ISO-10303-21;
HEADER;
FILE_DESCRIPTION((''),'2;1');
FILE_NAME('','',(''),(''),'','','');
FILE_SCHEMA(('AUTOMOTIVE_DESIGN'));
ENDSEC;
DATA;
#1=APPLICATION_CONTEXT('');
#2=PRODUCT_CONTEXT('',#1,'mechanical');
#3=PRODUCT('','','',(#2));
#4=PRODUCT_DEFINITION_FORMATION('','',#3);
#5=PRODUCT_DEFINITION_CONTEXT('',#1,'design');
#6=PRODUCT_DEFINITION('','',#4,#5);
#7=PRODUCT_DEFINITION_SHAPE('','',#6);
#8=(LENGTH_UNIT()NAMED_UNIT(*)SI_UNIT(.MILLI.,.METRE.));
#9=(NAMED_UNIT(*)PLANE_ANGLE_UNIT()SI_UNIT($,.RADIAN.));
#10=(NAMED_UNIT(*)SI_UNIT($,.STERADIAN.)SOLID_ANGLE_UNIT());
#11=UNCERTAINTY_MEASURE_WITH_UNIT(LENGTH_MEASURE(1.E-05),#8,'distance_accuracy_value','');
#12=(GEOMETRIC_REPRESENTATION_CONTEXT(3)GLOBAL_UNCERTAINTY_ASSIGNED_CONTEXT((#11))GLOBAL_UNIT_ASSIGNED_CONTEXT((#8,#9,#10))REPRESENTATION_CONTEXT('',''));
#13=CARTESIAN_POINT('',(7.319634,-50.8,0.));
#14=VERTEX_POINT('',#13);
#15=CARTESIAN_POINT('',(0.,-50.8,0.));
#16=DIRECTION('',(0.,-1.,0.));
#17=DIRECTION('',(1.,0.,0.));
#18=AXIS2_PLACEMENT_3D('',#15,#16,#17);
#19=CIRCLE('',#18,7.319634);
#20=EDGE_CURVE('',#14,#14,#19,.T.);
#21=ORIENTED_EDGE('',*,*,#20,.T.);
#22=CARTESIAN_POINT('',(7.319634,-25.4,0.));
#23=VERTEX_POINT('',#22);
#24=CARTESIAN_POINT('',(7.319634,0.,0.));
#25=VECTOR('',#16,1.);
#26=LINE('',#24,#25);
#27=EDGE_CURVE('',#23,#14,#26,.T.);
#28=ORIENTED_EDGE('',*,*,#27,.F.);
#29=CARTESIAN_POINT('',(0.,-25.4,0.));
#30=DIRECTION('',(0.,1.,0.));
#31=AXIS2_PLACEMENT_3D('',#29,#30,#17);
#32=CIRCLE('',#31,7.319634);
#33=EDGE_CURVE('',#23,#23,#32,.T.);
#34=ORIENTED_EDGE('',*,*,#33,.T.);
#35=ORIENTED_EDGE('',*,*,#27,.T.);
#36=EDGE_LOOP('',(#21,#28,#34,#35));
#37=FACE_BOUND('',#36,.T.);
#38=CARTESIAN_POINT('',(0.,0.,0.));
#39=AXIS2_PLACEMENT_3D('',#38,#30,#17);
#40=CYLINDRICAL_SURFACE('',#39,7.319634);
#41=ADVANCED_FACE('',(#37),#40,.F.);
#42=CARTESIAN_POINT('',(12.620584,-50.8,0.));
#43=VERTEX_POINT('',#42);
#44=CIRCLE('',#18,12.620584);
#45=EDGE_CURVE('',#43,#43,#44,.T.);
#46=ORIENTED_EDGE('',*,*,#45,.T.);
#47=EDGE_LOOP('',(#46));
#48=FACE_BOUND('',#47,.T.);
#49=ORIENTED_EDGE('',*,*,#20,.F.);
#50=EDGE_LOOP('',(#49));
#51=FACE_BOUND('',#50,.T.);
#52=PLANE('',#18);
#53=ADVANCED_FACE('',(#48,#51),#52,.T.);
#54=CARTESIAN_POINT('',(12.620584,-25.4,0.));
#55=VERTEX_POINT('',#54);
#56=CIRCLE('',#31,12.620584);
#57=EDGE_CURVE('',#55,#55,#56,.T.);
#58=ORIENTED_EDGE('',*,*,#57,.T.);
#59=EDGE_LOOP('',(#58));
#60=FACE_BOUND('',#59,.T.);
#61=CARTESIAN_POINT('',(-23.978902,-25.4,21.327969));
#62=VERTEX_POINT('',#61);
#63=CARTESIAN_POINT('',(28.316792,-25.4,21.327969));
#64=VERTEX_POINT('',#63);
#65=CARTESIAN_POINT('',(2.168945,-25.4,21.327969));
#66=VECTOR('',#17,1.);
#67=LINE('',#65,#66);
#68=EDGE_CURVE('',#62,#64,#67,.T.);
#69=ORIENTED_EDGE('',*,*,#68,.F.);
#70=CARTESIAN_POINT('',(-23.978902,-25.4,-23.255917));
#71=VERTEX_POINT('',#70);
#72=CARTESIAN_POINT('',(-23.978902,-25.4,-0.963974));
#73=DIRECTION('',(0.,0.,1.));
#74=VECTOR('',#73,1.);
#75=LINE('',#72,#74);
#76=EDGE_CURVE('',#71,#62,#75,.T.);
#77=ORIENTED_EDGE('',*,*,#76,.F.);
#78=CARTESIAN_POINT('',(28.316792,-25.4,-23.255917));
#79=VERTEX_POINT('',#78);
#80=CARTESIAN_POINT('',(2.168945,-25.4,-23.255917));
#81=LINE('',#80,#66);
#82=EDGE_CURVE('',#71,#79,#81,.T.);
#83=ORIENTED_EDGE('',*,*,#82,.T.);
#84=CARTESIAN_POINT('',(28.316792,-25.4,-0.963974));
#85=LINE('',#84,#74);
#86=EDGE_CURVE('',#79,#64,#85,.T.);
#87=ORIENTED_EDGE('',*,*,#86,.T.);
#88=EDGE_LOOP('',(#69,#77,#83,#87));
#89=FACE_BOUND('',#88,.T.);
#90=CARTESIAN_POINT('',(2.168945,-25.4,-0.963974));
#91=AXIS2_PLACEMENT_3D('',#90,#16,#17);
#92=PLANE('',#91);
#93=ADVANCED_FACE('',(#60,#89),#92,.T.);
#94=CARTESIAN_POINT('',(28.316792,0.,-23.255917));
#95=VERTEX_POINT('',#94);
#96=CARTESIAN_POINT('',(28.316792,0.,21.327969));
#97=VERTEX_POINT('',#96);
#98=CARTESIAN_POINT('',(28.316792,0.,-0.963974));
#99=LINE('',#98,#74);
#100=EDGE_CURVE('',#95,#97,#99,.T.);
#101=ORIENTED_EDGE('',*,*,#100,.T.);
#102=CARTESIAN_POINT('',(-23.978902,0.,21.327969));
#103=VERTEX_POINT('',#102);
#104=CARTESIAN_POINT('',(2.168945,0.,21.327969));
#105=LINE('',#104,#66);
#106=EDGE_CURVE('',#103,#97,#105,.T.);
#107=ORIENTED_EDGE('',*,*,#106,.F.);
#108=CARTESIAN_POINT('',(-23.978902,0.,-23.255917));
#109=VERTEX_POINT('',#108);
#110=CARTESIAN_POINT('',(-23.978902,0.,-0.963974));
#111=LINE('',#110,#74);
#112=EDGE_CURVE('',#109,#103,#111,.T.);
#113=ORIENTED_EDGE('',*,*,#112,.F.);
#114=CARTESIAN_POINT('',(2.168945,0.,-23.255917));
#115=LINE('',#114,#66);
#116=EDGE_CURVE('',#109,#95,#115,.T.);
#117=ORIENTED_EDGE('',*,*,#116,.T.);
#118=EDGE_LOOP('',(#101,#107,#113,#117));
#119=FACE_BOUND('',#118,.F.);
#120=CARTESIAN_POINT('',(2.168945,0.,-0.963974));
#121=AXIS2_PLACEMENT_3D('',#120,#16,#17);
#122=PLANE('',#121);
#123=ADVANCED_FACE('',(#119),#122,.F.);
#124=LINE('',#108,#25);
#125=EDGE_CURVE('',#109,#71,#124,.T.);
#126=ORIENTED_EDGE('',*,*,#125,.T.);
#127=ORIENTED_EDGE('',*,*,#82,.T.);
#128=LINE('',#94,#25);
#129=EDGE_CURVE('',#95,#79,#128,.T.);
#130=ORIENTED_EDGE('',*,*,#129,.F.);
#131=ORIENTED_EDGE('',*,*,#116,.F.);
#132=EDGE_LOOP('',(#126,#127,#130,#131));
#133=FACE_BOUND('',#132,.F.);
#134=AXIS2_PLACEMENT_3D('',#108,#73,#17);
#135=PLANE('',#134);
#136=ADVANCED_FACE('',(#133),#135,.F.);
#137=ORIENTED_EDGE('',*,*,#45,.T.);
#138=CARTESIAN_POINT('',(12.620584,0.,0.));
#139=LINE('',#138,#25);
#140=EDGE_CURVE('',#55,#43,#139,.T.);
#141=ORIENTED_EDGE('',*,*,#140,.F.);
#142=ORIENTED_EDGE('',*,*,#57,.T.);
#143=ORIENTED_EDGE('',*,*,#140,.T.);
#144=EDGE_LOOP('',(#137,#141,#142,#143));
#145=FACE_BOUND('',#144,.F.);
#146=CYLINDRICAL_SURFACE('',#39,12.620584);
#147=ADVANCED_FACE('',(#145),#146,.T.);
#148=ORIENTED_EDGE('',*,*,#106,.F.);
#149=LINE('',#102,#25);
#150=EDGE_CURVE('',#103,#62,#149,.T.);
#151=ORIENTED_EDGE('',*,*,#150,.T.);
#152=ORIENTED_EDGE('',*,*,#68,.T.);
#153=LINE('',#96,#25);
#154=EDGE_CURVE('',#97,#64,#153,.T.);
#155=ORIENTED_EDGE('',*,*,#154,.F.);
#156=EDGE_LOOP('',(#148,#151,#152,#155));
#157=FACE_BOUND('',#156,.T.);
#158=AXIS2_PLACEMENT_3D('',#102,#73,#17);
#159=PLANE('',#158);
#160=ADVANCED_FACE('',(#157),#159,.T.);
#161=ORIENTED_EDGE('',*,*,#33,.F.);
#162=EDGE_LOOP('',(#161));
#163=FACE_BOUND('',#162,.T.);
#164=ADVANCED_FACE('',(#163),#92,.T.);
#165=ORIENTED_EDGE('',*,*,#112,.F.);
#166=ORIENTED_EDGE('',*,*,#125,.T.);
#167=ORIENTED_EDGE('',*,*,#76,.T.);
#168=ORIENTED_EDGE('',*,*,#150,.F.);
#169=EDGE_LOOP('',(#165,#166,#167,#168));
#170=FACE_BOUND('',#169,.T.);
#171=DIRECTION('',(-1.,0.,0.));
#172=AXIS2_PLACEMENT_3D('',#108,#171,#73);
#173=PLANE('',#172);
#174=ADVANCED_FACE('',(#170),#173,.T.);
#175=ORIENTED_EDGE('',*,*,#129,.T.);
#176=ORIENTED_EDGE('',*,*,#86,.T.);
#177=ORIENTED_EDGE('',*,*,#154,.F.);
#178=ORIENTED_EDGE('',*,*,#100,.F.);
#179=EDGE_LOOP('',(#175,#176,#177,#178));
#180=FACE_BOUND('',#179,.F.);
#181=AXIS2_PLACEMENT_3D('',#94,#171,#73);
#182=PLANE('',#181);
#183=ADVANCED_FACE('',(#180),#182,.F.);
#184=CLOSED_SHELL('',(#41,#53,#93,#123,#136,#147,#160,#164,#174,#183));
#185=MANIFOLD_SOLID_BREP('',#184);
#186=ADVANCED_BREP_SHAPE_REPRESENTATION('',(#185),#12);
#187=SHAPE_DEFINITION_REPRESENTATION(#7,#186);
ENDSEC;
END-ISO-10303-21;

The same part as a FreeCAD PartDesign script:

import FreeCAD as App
import Part
import Sketcher

doc = App.newDocument("Part")
params = doc.addObject("Spreadsheet::Sheet", "Params")
for row, (alias, value) in enumerate([
    ("pad1_length", "2 in"),
    ("pad2_length", "1 in"),
], start=1):
    params.set(f"A{row}", alias)
    params.set(f"B{row}", "=" + value)
    params.setAlias(f"B{row}", alias)

body = doc.addObject("PartDesign::Body", "Body")

# Sketch on XZ plane
sketch1 = body.newObject("Sketcher::SketchObject", "Sketch")
sketch1.AttachmentSupport = (doc.getObject("XZ_Plane"), [""])
sketch1.MapMode = "FlatFace"
sketch1.addGeometry(Part.Circle(App.Vector(0, 0, 0), App.Vector(0, 0, 1), 13), False)
sketch1.addGeometry(Part.Circle(App.Vector(0, 0, 0), App.Vector(0, 0, 1), 7), False)
sketch1.addConstraint(Sketcher.Constraint("Coincident", 0, 3, -1, 1))
sketch1.addConstraint(Sketcher.Constraint("Coincident", 1, 3, -1, 1))
sketch1.addConstraint(Sketcher.Constraint("Diameter", 0, 25.241168))
sketch1.addConstraint(Sketcher.Constraint("Diameter", 1, 14.639268))
pad1 = body.newObject("PartDesign::Pad", "Pad")
pad1.Profile = sketch1
pad1.setExpression("Length", "Params.pad1_length")

# Sketch on XZ plane
sketch2 = body.newObject("Sketcher::SketchObject", "Sketch001")
sketch2.AttachmentSupport = (doc.getObject("XZ_Plane"), [""])
sketch2.MapMode = "FlatFace"
sketch2.addGeometry(Part.LineSegment(App.Vector(-24, 21, 0), App.Vector(-24, -23, 0)), False)
sketch2.addGeometry(Part.LineSegment(App.Vector(-24, -23, 0), App.Vector(28, -23, 0)), False)
sketch2.addGeometry(Part.LineSegment(App.Vector(28, -23, 0), App.Vector(28, 21, 0)), False)
sketch2.addGeometry(Part.LineSegment(App.Vector(28, 21, 0), App.Vector(-24, 21, 0)), False)
sketch2.addConstraint(Sketcher.Constraint("Coincident", 0, 2, 1, 1))
sketch2.addConstraint(Sketcher.Constraint("Coincident", 1, 2, 2, 1))
sketch2.addConstraint(Sketcher.Constraint("Coincident", 2, 2, 3, 1))
sketch2.addConstraint(Sketcher.Constraint("Coincident", 3, 2, 0, 1))
sketch2.addConstraint(Sketcher.Constraint("Vertical", 0))
sketch2.addConstraint(Sketcher.Constraint("Horizontal", 1))
sketch2.addConstraint(Sketcher.Constraint("Vertical", 2))
sketch2.addConstraint(Sketcher.Constraint("Horizontal", 3))
sketch2.addConstraint(Sketcher.Constraint("DistanceX", 1, 1, 1, 2, 52.295694))
sketch2.addConstraint(Sketcher.Constraint("DistanceY", 0, 2, 0, 1, 44.583887))
sketch2.addConstraint(Sketcher.Constraint("DistanceX", -1, 1, 1, 2, 28.316792))
sketch2.addConstraint(Sketcher.Constraint("DistanceY", -1, 1, 2, 2, 21.327969))
pad2 = body.newObject("PartDesign::Pad", "Pad001")
pad2.Profile = sketch2
pad2.setExpression("Length", "Params.pad2_length")

doc.recompute()
